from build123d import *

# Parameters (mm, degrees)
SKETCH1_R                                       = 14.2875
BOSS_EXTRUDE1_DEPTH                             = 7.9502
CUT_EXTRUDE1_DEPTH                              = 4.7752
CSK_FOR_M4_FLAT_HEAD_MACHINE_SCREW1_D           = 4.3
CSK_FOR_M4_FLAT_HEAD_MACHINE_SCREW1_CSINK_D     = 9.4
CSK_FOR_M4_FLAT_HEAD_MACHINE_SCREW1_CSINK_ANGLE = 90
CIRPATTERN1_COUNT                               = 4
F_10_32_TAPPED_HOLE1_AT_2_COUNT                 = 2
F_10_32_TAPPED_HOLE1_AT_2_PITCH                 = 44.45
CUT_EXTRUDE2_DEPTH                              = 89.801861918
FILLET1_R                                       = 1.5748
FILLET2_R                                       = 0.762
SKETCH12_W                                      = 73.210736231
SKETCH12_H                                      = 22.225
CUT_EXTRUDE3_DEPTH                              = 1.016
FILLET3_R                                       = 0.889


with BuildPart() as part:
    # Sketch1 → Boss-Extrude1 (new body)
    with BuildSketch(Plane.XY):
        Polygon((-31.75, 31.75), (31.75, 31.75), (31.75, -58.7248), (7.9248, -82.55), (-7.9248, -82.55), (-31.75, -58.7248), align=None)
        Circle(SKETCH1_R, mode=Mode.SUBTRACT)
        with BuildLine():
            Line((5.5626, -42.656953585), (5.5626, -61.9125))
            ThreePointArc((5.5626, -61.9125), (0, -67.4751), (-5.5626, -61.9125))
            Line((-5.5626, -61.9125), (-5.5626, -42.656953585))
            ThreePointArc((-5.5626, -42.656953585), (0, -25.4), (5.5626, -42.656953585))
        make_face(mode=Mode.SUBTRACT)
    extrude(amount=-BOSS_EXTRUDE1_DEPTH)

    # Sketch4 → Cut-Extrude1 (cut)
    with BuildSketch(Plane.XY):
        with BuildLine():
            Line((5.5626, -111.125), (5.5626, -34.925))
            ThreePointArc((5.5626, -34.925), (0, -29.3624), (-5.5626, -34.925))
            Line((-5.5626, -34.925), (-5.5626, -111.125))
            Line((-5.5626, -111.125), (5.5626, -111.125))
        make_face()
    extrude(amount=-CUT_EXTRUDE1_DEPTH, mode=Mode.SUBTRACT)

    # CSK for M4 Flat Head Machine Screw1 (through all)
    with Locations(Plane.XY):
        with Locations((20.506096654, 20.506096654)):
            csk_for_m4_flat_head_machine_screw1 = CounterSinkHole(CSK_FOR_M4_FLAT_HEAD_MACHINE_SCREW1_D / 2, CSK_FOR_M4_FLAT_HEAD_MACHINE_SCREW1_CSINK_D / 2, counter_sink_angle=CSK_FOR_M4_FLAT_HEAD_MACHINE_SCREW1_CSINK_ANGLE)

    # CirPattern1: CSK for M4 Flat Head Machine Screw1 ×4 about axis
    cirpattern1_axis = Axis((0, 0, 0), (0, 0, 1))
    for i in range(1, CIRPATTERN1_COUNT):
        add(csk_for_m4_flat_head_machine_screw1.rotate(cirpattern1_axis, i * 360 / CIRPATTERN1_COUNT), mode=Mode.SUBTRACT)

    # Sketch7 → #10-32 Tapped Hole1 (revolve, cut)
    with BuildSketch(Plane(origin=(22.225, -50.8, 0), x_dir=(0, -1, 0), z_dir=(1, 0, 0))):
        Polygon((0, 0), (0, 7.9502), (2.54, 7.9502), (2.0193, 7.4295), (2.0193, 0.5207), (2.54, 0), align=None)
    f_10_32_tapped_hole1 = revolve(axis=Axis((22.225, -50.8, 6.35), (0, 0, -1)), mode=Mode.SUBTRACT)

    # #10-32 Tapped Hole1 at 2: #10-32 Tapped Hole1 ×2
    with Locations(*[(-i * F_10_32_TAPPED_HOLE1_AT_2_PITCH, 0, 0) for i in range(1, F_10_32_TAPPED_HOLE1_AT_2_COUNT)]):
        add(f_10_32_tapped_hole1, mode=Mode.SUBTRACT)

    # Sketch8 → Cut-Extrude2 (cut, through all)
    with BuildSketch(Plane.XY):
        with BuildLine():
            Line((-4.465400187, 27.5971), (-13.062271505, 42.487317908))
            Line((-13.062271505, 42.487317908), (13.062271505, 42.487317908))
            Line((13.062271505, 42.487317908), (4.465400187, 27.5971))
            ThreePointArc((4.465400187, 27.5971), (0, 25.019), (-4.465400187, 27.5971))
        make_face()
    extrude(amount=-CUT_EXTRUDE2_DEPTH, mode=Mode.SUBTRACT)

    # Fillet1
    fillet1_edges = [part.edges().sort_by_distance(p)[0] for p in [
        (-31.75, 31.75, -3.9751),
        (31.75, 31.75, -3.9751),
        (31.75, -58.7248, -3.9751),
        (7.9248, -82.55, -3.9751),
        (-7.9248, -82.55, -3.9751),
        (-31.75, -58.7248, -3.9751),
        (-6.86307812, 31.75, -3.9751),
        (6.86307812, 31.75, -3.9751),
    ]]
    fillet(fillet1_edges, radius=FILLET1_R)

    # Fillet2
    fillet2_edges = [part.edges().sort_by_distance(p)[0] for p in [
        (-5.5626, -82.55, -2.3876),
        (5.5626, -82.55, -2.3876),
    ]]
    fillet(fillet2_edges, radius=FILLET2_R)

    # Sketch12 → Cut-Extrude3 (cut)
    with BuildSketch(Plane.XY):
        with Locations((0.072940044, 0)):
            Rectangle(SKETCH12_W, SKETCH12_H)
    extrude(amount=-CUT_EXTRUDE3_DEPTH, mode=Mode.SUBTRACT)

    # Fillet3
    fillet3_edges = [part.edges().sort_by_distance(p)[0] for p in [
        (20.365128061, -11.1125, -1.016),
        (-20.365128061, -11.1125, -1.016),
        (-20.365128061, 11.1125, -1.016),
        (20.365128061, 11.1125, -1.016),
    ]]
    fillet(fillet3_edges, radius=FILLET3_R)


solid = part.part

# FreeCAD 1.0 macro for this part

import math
import FreeCAD as App
import Part
import Sketcher

V = App.Vector
Q = App.Units.Quantity


def edges_at(feature, points):
    """Names of the edges that pass closest to the given points."""
    edges = feature.Shape.Edges
    near = lambda p: min(range(len(edges)), key=lambda i: edges[i].distToShape(Part.Vertex(*p))[0])
    return sorted({f"Edge{near(p) + 1}" for p in points})


def add_polygon(sketch, points):
    """Adds a closed chain of lines whose ends are joined by coincident constraints."""
    first, n = sketch.GeometryCount, len(points)
    for a, b in zip(points, points[1:] + points[:1]):
        sketch.addGeometry(Part.LineSegment(App.Vector(*a, 0), App.Vector(*b, 0)), False)
    for i in range(n):
        sketch.addConstraint(Sketcher.Constraint("Coincident", first + i, 2, first + (i + 1) % n, 1))

doc = App.newDocument("Part")
params = doc.addObject("Spreadsheet::Sheet", "Params")
for row, (alias, value) in enumerate([
    ("sketch1_diameter", "1.125 in"),
    ("sketch1_width", "2.5 in"),
    ("sketch1_radius", "0.219 in"),
    ("sketch1_radius2", "0.375 in"),
    ("sketch1_width2", "0.624 in"),
    ("pad1_length", "0.313 in"),
    ("sketch2_height", "3 in"),
    ("sketch2_radius", "0.219 in"),
    ("pocket1_length", "0.188 in"),
    ("hole_diameter", "4.3 mm"),
    ("hole_csink_diameter", "9.4 mm"),
    ("sketch4_width", "0.1 in"),
    ("sketch4_height", "0.313 in"),
    ("sketch4_height2", "0.272 in"),
    ("groove_angle", "360 deg"),
    ("linearpattern_pitch", "1.75 in"),
    ("sketch5_radius", "0.203 in"),
    ("fillet_radius", "0.062 in"),
    ("fillet2_radius", "0.03 in"),
    ("sketch6_height", "0.875 in"),
    ("pocket3_length", "0.04 in"),
    ("fillet3_radius", "0.035 in"),
], start=1):
    params.set(f"A{row}", alias)
    params.set(f"B{row}", "=" + value)
    params.setAlias(f"B{row}", alias)

body = doc.addObject("PartDesign::Body", "Body")

# Sketch on XY plane
sketch1 = doc.addObject("Sketcher::SketchObject", "Sketch")
body.addObject(sketch1)
sketch1.AttachmentSupport = (doc.XY_Plane, [""])
sketch1.MapMode = "FlatFace"
add_polygon(sketch1, [(32, 32), (-32, 32), (-32, -59), (-8, -83), (8, -83), (32, -59)])  # lines 0-5
sketch1.addGeometry(Part.LineSegment(V(6, -43, 0), V(6, -62, 0)), False)  # 6
sketch1.addGeometry(Part.ArcOfCircle(Part.Circle(V(0, -62, 0), V(0, 0, 1), 6), math.radians(180), math.radians(360)), False)  # 7
sketch1.addGeometry(Part.LineSegment(V(-6, -62, 0), V(-6, -43, 0)), False)  # 8
sketch1.addGeometry(Part.ArcOfCircle(Part.Circle(V(0, -35, 0), V(0, 0, 1), 10), math.radians(-54), math.radians(234)), False)  # 9
sketch1.addGeometry(Part.Circle(V(0, 0, 0), V(0, 0, 1), 14), False)  # 10
sketch1.addConstraint([
    Sketcher.Constraint("Tangent", 6, 2, 7, 2),
    Sketcher.Constraint("Tangent", 7, 1, 8, 1),
    Sketcher.Constraint("Coincident", 8, 2, 9, 2),
    Sketcher.Constraint("Coincident", 9, 1, 6, 1),
    Sketcher.Constraint("Horizontal", 0),
    Sketcher.Constraint("Vertical", 1),
    Sketcher.Constraint("Horizontal", 3),
    Sketcher.Constraint("Vertical", 5),
    Sketcher.Constraint("Vertical", 6),
    Sketcher.Constraint("Vertical", 8),
    Sketcher.Constraint("Coincident", 10, 3, -1, 1),
    Sketcher.Constraint("Symmetric", 1, 2, 4, 2, -2),
    Sketcher.Constraint("Symmetric", 8, 2, 9, 1, -2),
    Sketcher.Constraint("Perpendicular", 2, 4),
    Sketcher.Constraint("Equal", 2, 4),
    Sketcher.Constraint("Diameter", 10, Q("1.125 in")),
    Sketcher.Constraint("DistanceX", 0, 2, 0, 1, Q("2.5 in")),
    Sketcher.Constraint("Radius", 7, Q("0.219 in")),
    Sketcher.Constraint("Radius", 9, Q("0.375 in")),
    Sketcher.Constraint("DistanceY", 2, 2, 0, 2, Q("4.5 in")),
    Sketcher.Constraint("DistanceX", 3, 1, 3, 2, Q("0.624 in")),
    Sketcher.Constraint("DistanceY", -1, 1, 0, 2, Q("1.25 in")),
    Sketcher.Constraint("DistanceY", 7, 3, -1, 1, Q("2.4375 in")),
    Sketcher.Constraint("DistanceY", 9, 3, -1, 1, Q("1.375 in")),
])
sketch1.setExpression("Constraints[21]", "Params.sketch1_diameter")
sketch1.setExpression("Constraints[22]", "Params.sketch1_width")
sketch1.setExpression("Constraints[23]", "Params.sketch1_radius")
sketch1.setExpression("Constraints[24]", "Params.sketch1_radius2")
sketch1.setExpression("Constraints[26]", "Params.sketch1_width2")
pad1 = doc.addObject("PartDesign::Pad", "Pad")
body.addObject(pad1)
pad1.Profile = sketch1
pad1.setExpression("Length", "Params.pad1_length")
pad1.Reversed = True

# Sketch on XY plane
sketch2 = doc.addObject("Sketcher::SketchObject", "Sketch001")
body.addObject(sketch2)
sketch2.AttachmentSupport = (doc.XY_Plane, [""])
sketch2.MapMode = "FlatFace"
sketch2.addGeometry([
    Part.LineSegment(V(6, -111, 0), V(6, -35, 0)),
    Part.ArcOfCircle(Part.Circle(V(0, -35, 0), V(0, 0, 1), 6), math.radians(0), math.radians(180)),
    Part.LineSegment(V(-6, -35, 0), V(-6, -111, 0)),
    Part.LineSegment(V(-6, -111, 0), V(6, -111, 0)),
], False)
sketch2.addConstraint([
    Sketcher.Constraint("Tangent", 0, 2, 1, 1),
    Sketcher.Constraint("Tangent", 1, 2, 2, 1),
    Sketcher.Constraint("Coincident", 2, 2, 3, 1),
    Sketcher.Constraint("Coincident", 3, 2, 0, 1),
    Sketcher.Constraint("Vertical", 0),
    Sketcher.Constraint("Vertical", 2),
    Sketcher.Constraint("Horizontal", 3),
    Sketcher.Constraint("PointOnObject", 1, 3, -2),
    Sketcher.Constraint("DistanceY", 0, 1, 0, 2, Q("3 in")),
    Sketcher.Constraint("Radius", 1, Q("0.219 in")),
    Sketcher.Constraint("DistanceY", 1, 3, -1, 1, Q("1.375 in")),
])
sketch2.setExpression("Constraints[8]", "Params.sketch2_height")
sketch2.setExpression("Constraints[9]", "Params.sketch2_radius")
pocket1 = doc.addObject("PartDesign::Pocket", "Pocket")
body.addObject(pocket1)
pocket1.Profile = sketch2
pocket1.setExpression("Length", "Params.pocket1_length")

# Sketch on XY plane
sketch3 = doc.addObject("Sketcher::SketchObject", "Sketch002")
body.addObject(sketch3)
sketch3.AttachmentSupport = (doc.XY_Plane, [""])
sketch3.MapMode = "FlatFace"
sketch3.addGeometry(Part.Circle(V(20.5, 20.5, 0), V(0, 0, 1), 2.1), False)
sketch3.addConstraint([
    Sketcher.Constraint("Diameter", 0, Q("4.3 mm")),
    Sketcher.Constraint("DistanceX", -1, 1, 0, 3, Q("20.506097 mm")),
    Sketcher.Constraint("DistanceY", -1, 1, 0, 3, Q("20.506097 mm")),
])
doc.recompute()
hole = doc.addObject("PartDesign::Hole", "Hole")
body.addObject(hole)
hole.Profile = sketch3
hole.ThreadType = "None"
hole.setExpression("Diameter", "Params.hole_diameter")
hole.DepthType = "ThroughAll"
hole.HoleCutType = "Countersink"
hole.setExpression("HoleCutDiameter", "Params.hole_csink_diameter")
hole.HoleCutCountersinkAngle = 90
doc.recompute()

polarpattern = doc.addObject("PartDesign::PolarPattern", "PolarPattern")
body.addObject(polarpattern)
polarpattern.Originals = [hole]
polarpattern.Axis = (doc.Z_Axis, [""])
polarpattern.Angle = 360
polarpattern.Occurrences = 4
body.Tip = polarpattern

# Sketch on YZ plane
sketch4 = doc.addObject("Sketcher::SketchObject", "Sketch003")
body.addObject(sketch4)
sketch4.AttachmentSupport = (doc.YZ_Plane, [""])
sketch4.MapMode = "FlatFace"
sketch4.AttachmentOffset = App.Placement(V(0, 0, 0.875 * 25.4), App.Rotation())
add_polygon(sketch4, [(-50.8, -8), (-50.8, 0), (-53.3, 0), (-52.8, -0.5), (-52.8, -7.4), (-53.3, -8)])  # lines 0-5
sketch4.addGeometry(Part.LineSegment(V(-50.8, 0, 0), V(-50.8, -8, 0)), True)  # axis
sketch4.addConstraint([
    Sketcher.Constraint("Vertical", 0),
    Sketcher.Constraint("Horizontal", 1),
    Sketcher.Constraint("Vertical", 3),
    Sketcher.Constraint("Horizontal", 5),
    Sketcher.Constraint("Vertical", 6),
    Sketcher.Constraint("Coincident", 6, 1, 0, 2),
    Sketcher.Constraint("PointOnObject", 0, 2, -1),
    Sketcher.Constraint("Perpendicular", 2, 4),
    Sketcher.Constraint("Horizontal", 4, 2, 6, 2),
    Sketcher.Constraint("Vertical", 1, 2, 4, 2),
    Sketcher.Constraint("Equal", 2, 4),
    Sketcher.Constraint("DistanceX", 1, 2, 1, 1, Q("0.1 in")),
    Sketcher.Constraint("DistanceX", 0, 2, -1, 1, Q("2 in")),
    Sketcher.Constraint("DistanceY", 0, 1, 0, 2, Q("0.313 in")),
    Sketcher.Constraint("DistanceY", 3, 2, 3, 1, Q("0.272 in")),
])
sketch4.setExpression("Constraints[17]", "Params.sketch4_width")
sketch4.setExpression("Constraints[19]", "Params.sketch4_height")
sketch4.setExpression("Constraints[20]", "Params.sketch4_height2")
groove = doc.addObject("PartDesign::Groove", "Groove")
body.addObject(groove)
groove.Profile = sketch4
groove.ReferenceAxis = (sketch4, ["Axis0"])
groove.setExpression("Angle", "Params.groove_angle")
doc.recompute()

linearpattern = doc.addObject("PartDesign::LinearPattern", "LinearPattern")
body.addObject(linearpattern)
linearpattern.Originals = [groove]
linearpattern.Direction = (doc.X_Axis, [""])
linearpattern.Mode = "offset"
linearpattern.setExpression("Offset", "Params.linearpattern_pitch")
linearpattern.Occurrences = 2
linearpattern.Reversed = True
body.Tip = linearpattern

# Sketch on XY plane
sketch5 = doc.addObject("Sketcher::SketchObject", "Sketch004")
body.addObject(sketch5)
sketch5.AttachmentSupport = (doc.XY_Plane, [""])
sketch5.MapMode = "FlatFace"
sketch5.addGeometry([
    Part.LineSegment(V(-13, 42, 0), V(-4, 28, 0)),
    Part.ArcOfCircle(Part.Circle(V(0, 30, 0), V(0, 0, 1), 5), math.radians(-150), math.radians(-30)),
    Part.LineSegment(V(4, 28, 0), V(13, 42, 0)),
    Part.LineSegment(V(13, 42, 0), V(-13, 42, 0)),
], False)
sketch5.addConstraint([
    Sketcher.Constraint("Tangent", 0, 2, 1, 1),
    Sketcher.Constraint("Tangent", 1, 2, 2, 1),
    Sketcher.Constraint("Coincident", 2, 2, 3, 1),
    Sketcher.Constraint("Coincident", 3, 2, 0, 1),
    Sketcher.Constraint("Horizontal", 3),
    Sketcher.Constraint("Symmetric", 0, 2, 1, 2, -2),
    Sketcher.Constraint("Angle", 0, Q("-60 deg")),
    Sketcher.Constraint("Radius", 1, Q("0.203 in")),
    Sketcher.Constraint("DistanceY", -1, 1, 1, 3, Q("1.188 in")),
    Sketcher.Constraint("DistanceX", 3, 2, 3, 1, Q("26.124543 mm")),
])
sketch5.setExpression("Constraints[7]", "Params.sketch5_radius")
pocket2 = doc.addObject("PartDesign::Pocket", "Pocket001")
body.addObject(pocket2)
pocket2.Profile = sketch5
pocket2.Type = "ThroughAll"
doc.recompute()

fillet = doc.addObject("PartDesign::Fillet", "Fillet")
body.addObject(fillet)
fillet.Base = (pocket2, edges_at(pocket2, [
    (-31.75, 31.75, -3.975),
    (31.75, 31.75, -3.975),
    (31.75, -58.725, -3.975),
    (7.925, -82.55, -3.975),
    (-7.925, -82.55, -3.975),
    (-31.75, -58.725, -3.975),
    (-6.863, 31.75, -3.975),
    (6.863, 31.75, -3.975),
]))
fillet.setExpression("Radius", "Params.fillet_radius")
doc.recompute()

fillet2 = doc.addObject("PartDesign::Fillet", "Fillet001")
body.addObject(fillet2)
fillet2.Base = (fillet, edges_at(fillet, [(-5.563, -82.55, -2.388), (5.563, -82.55, -2.388)]))
fillet2.setExpression("Radius", "Params.fillet2_radius")

# Sketch on XY plane
sketch6 = doc.addObject("Sketcher::SketchObject", "Sketch005")
body.addObject(sketch6)
sketch6.AttachmentSupport = (doc.XY_Plane, [""])
sketch6.MapMode = "FlatFace"
add_polygon(sketch6, [(-37, 11), (-37, -11), (37, -11), (37, 11)])  # lines 0-3
sketch6.addConstraint([
    Sketcher.Constraint("Vertical", 0),
    Sketcher.Constraint("Horizontal", 1),
    Sketcher.Constraint("Vertical", 2),
    Sketcher.Constraint("Horizontal", 3),
    Sketcher.Constraint("DistanceY", 0, 2, 0, 1, Q("0.875 in")),
    Sketcher.Constraint("DistanceY", 0, 2, -1, 1, Q("0.4375 in")),
    Sketcher.Constraint("DistanceX", 1, 1, 1, 2, Q("73.210736 mm")),
    Sketcher.Constraint("DistanceX", 0, 2, -1, 1, Q("36.532428 mm")),
])
sketch6.setExpression("Constraints[8]", "Params.sketch6_height")
pocket3 = doc.addObject("PartDesign::Pocket", "Pocket002")
body.addObject(pocket3)
pocket3.Profile = sketch6
pocket3.setExpression("Length", "Params.pocket3_length")
doc.recompute()

fillet3 = doc.addObject("PartDesign::Fillet", "Fillet002")
body.addObject(fillet3)
fillet3.Base = (pocket3, edges_at(pocket3, [
    (20.365, -11.113, -1.016),
    (-20.365, -11.113, -1.016),
    (-20.365, 11.113, -1.016),
    (20.365, 11.113, -1.016),
]))
fillet3.setExpression("Radius", "Params.fillet3_radius")

doc.recompute()
